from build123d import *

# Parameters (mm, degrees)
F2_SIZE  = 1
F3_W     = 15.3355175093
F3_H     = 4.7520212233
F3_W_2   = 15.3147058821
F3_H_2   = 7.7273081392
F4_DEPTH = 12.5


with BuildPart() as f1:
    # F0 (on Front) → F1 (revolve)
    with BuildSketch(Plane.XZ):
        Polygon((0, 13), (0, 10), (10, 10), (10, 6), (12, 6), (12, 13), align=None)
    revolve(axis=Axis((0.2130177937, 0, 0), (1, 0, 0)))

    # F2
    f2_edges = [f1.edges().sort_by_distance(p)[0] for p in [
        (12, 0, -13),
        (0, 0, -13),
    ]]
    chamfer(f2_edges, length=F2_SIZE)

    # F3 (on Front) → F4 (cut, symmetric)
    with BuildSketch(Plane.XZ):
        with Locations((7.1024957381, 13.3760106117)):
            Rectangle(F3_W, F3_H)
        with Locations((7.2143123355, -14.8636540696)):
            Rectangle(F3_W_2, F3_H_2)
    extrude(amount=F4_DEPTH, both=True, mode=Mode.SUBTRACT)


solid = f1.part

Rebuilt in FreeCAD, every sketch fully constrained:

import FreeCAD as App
import Part
import Sketcher


def edges_at(feature, points):
    """Names of the edges that pass closest to the given points."""
    edges = feature.Shape.Edges
    near = lambda p: min(range(len(edges)), key=lambda i: edges[i].distToShape(Part.Vertex(*p))[0])
    return sorted({f"Edge{near(p) + 1}" for p in points})


def add_polygon(sketch, points):
    """Adds a closed chain of lines whose ends are joined by coincident constraints."""
    first, n = sketch.GeometryCount, len(points)
    for a, b in zip(points, points[1:] + points[:1]):
        sketch.addGeometry(Part.LineSegment(App.Vector(*a, 0), App.Vector(*b, 0)), False)
    for i in range(n):
        sketch.addConstraint(Sketcher.Constraint("Coincident", first + i, 2, first + (i + 1) % n, 1))

doc = App.newDocument("Part")
body = doc.addObject("PartDesign::Body", "Body")

sketch1 = body.newObject("Sketcher::SketchObject", "Sketch")
sketch1.AttachmentSupport = (doc.getObject("XZ_Plane"), [""])
sketch1.MapMode = "FlatFace"
add_polygon(sketch1, [(0, 13), (0, 10), (10, 10), (10, 6), (12, 6), (12, 13)])
sketch1.addConstraint([
    Sketcher.Constraint("Vertical", 0),
    Sketcher.Constraint("Horizontal", 1),
    Sketcher.Constraint("Vertical", 2),
    Sketcher.Constraint("Horizontal", 3),
    Sketcher.Constraint("Vertical", 4),
    Sketcher.Constraint("Horizontal", 5),
    Sketcher.Constraint("PointOnObject", 0, 2, -2),
    Sketcher.Constraint("DistanceX", 1, 1, 1, 2, 10.0),
    Sketcher.Constraint("DistanceX", 3, 1, 3, 2, 2.0),
    Sketcher.Constraint("DistanceY", 0, 2, 0, 1, 3.0),
    Sketcher.Constraint("DistanceY", 2, 2, 2, 1, 4.0),
    Sketcher.Constraint("DistanceY", -1, 1, 0, 2, 10.0),
])
revolution = body.newObject("PartDesign::Revolution", "Revolution")
revolution.Profile = sketch1
revolution.ReferenceAxis = (sketch1, ["H_Axis"])
revolution.Angle = 360
doc.recompute()

chamfer = body.newObject("PartDesign::Chamfer", "Chamfer")
chamfer.Base = (revolution, edges_at(revolution, [(12, 0, -13), (0, 0, -13)]))
chamfer.Size = 1

sketch2 = body.newObject("Sketcher::SketchObject", "Sketch001")
sketch2.AttachmentSupport = (doc.getObject("XZ_Plane"), [""])
sketch2.MapMode = "FlatFace"
add_polygon(sketch2, [(-0.6, 15.8), (-0.6, 11), (14.8, 11), (14.8, 15.8)])
add_polygon(sketch2, [(-0.4, -11), (-0.4, -18.7), (14.9, -18.7), (14.9, -11)])
sketch2.addConstraint([
    Sketcher.Constraint("Vertical", 0),
    Sketcher.Constraint("Horizontal", 1),
    Sketcher.Constraint("Vertical", 2),
    Sketcher.Constraint("Horizontal", 3),
    Sketcher.Constraint("Vertical", 4),
    Sketcher.Constraint("Horizontal", 5),
    Sketcher.Constraint("Vertical", 6),
    Sketcher.Constraint("Horizontal", 7),
    Sketcher.Constraint("DistanceY", -1, 1, 0, 2, 11.0),
    Sketcher.Constraint("DistanceY", 6, 2, -1, 1, 11.0),
    Sketcher.Constraint("DistanceY", 0, 2, 0, 1, 4.752021),
    Sketcher.Constraint("DistanceY", 4, 2, 4, 1, 7.727308),
    Sketcher.Constraint("DistanceX", 1, 1, 1, 2, 15.335518),
    Sketcher.Constraint("DistanceX", 5, 1, 5, 2, 15.314706),
    Sketcher.Constraint("DistanceX", 4, 2, -1, 1, 0.443041),
    Sketcher.Constraint("DistanceX", 1, 2, 5, 2, 0.101411),
])
pocket1 = body.newObject("PartDesign::Pocket", "Pocket")
pocket1.Profile = sketch2
pocket1.Length = 25
pocket1.Midplane = True

doc.recompute()
